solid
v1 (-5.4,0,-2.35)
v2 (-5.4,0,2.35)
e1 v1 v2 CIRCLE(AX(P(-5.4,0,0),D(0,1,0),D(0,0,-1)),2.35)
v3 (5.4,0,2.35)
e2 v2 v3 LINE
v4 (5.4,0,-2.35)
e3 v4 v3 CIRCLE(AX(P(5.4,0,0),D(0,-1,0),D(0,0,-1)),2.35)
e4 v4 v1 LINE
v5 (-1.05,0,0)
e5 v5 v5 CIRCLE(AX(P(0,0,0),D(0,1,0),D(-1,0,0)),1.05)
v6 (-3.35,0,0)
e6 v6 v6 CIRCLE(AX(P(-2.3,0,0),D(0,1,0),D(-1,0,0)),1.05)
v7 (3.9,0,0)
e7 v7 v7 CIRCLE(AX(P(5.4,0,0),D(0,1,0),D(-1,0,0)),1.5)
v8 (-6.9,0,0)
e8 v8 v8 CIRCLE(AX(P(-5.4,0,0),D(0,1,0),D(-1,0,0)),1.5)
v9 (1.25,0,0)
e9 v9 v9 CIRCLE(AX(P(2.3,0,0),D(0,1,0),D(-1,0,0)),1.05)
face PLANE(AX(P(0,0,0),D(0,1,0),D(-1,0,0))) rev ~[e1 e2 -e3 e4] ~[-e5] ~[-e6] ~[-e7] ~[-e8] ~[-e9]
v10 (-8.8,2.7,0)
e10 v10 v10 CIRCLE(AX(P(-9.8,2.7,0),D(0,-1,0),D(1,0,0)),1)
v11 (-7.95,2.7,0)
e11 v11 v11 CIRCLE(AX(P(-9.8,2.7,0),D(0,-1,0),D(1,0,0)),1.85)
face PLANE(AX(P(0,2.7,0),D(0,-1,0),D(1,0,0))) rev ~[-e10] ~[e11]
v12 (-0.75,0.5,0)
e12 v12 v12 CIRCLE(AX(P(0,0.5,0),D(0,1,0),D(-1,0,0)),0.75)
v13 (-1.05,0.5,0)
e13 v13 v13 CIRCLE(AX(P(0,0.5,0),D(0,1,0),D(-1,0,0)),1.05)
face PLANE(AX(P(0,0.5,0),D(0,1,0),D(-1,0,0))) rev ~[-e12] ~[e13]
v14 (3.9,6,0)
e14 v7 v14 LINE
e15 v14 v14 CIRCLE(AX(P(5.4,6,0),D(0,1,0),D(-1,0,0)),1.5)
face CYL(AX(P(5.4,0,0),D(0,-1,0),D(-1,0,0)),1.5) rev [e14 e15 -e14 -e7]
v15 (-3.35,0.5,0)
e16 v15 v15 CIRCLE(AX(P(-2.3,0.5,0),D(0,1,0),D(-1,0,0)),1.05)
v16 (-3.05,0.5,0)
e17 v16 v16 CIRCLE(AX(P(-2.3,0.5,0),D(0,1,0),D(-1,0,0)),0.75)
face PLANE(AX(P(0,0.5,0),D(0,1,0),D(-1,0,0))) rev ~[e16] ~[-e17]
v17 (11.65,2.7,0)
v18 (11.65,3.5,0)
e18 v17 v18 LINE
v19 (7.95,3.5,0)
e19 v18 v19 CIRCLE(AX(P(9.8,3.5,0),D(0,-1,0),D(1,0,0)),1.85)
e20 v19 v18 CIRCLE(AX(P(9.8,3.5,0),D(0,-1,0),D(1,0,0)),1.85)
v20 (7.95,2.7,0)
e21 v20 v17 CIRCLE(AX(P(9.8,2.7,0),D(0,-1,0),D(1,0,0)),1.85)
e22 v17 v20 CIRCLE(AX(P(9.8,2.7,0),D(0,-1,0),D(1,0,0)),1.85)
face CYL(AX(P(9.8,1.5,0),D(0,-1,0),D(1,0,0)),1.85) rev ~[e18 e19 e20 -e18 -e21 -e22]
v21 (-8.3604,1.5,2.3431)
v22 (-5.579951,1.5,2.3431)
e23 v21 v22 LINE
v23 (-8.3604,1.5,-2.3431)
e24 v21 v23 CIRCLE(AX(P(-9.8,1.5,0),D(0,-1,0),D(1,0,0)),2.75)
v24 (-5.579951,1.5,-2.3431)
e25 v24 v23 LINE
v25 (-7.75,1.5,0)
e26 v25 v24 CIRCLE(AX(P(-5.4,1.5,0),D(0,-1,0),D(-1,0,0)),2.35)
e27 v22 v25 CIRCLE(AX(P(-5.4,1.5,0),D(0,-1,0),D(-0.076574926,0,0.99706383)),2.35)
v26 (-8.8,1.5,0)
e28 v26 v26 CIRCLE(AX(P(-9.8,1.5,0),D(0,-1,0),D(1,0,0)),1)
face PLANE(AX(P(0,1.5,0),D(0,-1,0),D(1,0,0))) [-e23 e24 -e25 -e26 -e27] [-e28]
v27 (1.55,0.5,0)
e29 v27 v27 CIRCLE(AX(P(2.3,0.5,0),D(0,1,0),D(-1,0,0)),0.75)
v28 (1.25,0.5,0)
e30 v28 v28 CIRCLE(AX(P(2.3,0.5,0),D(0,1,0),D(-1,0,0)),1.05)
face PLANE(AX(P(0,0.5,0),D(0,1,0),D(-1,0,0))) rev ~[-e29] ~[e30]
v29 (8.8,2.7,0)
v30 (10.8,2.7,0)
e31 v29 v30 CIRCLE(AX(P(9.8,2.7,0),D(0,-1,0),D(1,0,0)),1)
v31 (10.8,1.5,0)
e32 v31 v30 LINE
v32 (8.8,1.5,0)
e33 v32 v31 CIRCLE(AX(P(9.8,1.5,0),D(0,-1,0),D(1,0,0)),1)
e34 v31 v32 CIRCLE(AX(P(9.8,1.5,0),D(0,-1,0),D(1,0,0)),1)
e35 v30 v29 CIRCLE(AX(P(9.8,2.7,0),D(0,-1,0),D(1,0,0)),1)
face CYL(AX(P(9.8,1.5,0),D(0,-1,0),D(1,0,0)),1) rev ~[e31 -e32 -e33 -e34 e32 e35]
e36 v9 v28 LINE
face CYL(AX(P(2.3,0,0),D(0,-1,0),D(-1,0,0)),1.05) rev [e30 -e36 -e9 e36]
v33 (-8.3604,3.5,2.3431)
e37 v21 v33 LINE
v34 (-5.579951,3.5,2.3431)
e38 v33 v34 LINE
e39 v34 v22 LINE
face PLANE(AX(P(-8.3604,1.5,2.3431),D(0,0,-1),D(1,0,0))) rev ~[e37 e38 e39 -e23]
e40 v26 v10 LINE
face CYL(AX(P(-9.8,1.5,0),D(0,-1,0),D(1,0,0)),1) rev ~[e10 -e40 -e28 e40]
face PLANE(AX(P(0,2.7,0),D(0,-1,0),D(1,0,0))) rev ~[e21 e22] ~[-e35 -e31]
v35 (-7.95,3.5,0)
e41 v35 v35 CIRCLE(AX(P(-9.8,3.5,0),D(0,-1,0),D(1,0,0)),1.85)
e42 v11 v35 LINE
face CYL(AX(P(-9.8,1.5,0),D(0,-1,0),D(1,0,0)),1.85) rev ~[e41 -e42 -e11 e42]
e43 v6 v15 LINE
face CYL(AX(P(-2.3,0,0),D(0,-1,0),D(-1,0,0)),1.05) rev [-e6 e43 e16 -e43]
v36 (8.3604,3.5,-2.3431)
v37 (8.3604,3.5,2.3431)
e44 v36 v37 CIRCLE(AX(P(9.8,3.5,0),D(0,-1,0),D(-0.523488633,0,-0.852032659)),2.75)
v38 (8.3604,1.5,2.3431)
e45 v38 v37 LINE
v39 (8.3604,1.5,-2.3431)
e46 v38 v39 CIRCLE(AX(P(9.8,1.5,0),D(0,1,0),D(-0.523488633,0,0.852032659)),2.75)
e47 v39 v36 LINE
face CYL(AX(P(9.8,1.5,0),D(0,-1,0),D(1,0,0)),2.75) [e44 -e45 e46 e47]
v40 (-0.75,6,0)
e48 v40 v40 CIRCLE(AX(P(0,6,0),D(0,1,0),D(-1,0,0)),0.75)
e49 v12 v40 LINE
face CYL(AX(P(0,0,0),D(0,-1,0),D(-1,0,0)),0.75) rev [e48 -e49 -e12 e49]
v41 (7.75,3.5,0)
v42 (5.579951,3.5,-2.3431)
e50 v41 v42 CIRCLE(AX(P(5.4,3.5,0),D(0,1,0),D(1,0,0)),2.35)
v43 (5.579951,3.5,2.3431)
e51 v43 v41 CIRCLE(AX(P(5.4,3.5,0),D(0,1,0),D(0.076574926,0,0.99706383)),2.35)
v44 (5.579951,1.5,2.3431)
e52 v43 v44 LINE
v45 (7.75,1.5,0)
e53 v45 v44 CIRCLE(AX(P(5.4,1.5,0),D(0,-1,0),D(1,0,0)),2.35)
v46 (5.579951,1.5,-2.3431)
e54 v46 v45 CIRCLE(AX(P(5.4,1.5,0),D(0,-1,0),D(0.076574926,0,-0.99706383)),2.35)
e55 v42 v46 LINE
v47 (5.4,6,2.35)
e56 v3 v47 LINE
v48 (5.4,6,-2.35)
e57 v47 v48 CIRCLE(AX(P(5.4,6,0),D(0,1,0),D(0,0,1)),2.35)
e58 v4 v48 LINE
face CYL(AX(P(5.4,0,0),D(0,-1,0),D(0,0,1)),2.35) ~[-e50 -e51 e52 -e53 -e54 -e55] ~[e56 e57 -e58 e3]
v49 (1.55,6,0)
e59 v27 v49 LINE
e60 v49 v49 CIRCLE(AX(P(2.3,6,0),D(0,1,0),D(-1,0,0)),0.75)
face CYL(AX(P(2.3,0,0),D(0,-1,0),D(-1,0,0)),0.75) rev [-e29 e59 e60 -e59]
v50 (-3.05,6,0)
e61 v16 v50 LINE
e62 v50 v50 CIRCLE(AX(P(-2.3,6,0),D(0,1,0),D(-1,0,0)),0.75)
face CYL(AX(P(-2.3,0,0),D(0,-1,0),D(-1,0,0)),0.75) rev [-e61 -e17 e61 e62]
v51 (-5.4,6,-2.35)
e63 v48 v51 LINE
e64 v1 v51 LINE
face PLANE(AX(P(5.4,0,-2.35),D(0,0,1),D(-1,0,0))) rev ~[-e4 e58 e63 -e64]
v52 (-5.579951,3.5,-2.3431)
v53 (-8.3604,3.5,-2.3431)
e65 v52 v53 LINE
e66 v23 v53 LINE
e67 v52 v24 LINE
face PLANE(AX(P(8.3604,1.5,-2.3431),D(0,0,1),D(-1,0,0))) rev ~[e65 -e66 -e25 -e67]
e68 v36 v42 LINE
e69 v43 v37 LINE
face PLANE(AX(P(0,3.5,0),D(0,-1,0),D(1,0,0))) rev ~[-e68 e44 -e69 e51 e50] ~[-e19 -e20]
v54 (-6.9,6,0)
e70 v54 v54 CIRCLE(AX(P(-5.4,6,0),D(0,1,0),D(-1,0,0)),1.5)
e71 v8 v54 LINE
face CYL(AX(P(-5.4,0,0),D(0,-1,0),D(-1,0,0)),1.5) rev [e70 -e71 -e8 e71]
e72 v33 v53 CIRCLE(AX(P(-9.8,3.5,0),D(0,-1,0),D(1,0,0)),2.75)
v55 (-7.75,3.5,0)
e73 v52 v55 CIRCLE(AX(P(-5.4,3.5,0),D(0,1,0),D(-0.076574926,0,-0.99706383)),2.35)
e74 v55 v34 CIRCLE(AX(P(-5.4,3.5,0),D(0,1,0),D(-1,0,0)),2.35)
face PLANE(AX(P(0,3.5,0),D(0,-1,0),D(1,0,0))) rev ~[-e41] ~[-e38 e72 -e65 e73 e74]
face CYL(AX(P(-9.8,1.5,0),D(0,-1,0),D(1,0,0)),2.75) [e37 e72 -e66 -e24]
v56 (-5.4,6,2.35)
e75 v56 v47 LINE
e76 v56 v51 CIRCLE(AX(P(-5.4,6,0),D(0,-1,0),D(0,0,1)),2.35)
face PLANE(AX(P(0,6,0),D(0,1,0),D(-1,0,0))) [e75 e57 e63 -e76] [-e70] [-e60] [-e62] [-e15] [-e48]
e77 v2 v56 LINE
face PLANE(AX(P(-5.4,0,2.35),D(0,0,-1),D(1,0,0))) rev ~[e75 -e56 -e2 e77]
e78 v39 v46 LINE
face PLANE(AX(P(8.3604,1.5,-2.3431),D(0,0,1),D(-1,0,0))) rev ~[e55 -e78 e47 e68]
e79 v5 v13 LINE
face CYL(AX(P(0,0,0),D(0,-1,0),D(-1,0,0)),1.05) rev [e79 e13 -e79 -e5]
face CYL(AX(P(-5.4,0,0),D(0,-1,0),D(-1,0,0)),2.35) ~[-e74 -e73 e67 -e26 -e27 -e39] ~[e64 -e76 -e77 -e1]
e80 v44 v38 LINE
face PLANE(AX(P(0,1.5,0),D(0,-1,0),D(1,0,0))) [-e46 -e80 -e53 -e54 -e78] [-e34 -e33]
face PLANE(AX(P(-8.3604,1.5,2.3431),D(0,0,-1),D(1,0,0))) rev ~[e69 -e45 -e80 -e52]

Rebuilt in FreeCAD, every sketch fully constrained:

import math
import FreeCAD as App
import Part
import Sketcher

V = App.Vector

doc = App.newDocument("Part")
params = doc.addObject("Spreadsheet::Sheet", "Params")
for row, (alias, value) in enumerate([
    ("sketch1_diameter", "3 mm"),
    ("sketch1_diameter2", "1.5 mm"),
    ("sketch1_radius", "2.35 mm"),
    ("sketch1_width", "10.8 mm"),
    ("pad1_length", "6 mm"),
    ("sketch2_radius", "2.75 mm"),
    ("pad2_length", "2 mm"),
    ("sketch3_diameter", "5.5 mm"),
    ("sketch3_diameter2", "3.7 mm"),
    ("pad3_length", "2 mm"),
    ("sketch4_diameter", "2 mm"),
    ("sketch4_diameter2", "3.7 mm"),
    ("pad4_length", "1.2 mm"),
    ("sketch5_diameter", "2 mm"),
    ("sketch6_diameter", "3 mm"),
    ("sketch7_diameter", "1.5 mm"),
    ("pocket3_length", "10 mm"),
    ("sketch8_diameter", "2.1 mm"),
    ("sketch8_diameter2", "1.5 mm"),
    ("pocket4_length", "0.5 mm"),
], start=1):
    params.set(f"A{row}", alias)
    params.set(f"B{row}", "=" + value)
    params.setAlias(f"B{row}", alias)

body = doc.addObject("PartDesign::Body", "Body")

sketch1 = doc.addObject("Sketcher::SketchObject", "Sketch")
body.addObject(sketch1)
sketch1.AttachmentSupport = (doc.XZ_Plane, [""])
sketch1.MapMode = "FlatFace"
sketch1.addGeometry([
    Part.LineSegment(V(-5.4, 2.4, 0), V(5.4, 2.4, 0)),
    Part.ArcOfCircle(Part.Circle(V(5.4, 0, 0), V(0, 0, 1), 2.4), math.radians(-90), math.radians(90)),
    Part.LineSegment(V(5.4, -2.4, 0), V(-5.4, -2.4, 0)),
    Part.ArcOfCircle(Part.Circle(V(-5.4, 0, 0), V(0, 0, 1), 2.4), math.radians(90), math.radians(270)),
    Part.Circle(V(5.4, 0, 0), V(0, 0, 1), 1.5),
    Part.Circle(V(-5.4, 0, 0), V(0, 0, 1), 1.5),
    Part.Circle(V(2.3, 0, 0), V(0, 0, 1), 0.8),
    Part.Circle(V(0, 0, 0), V(0, 0, 1), 0.8),
    Part.Circle(V(-2.3, 0, 0), V(0, 0, 1), 0.8),
], False)
sketch1.addConstraint([
    Sketcher.Constraint("Tangent", 0, 2, 1, 2),
    Sketcher.Constraint("Tangent", 1, 1, 2, 1),
    Sketcher.Constraint("Tangent", 2, 2, 3, 2),
    Sketcher.Constraint("Tangent", 3, 1, 0, 1),
    Sketcher.Constraint("Horizontal", 0),
    Sketcher.Constraint("Horizontal", 2),
    Sketcher.Constraint("Coincident", 7, 3, -1, 1),
    Sketcher.Constraint("Coincident", 4, 3, 1, 3),
    Sketcher.Constraint("Coincident", 5, 3, 3, 3),
    Sketcher.Constraint("Equal", 4, 5),
    Sketcher.Constraint("Equal", 6, 7),
    Sketcher.Constraint("Equal", 7, 8),
    Sketcher.Constraint("Symmetric", 1, 3, 3, 3, -1, 1),
    Sketcher.Constraint("Symmetric", 6, 3, 8, 3, -1, 1),
    Sketcher.Constraint("PointOnObject", 6, 3, -1),
    Sketcher.Constraint("Diameter", 4, 3.0),
    Sketcher.Constraint("Diameter", 6, 1.5),
    Sketcher.Constraint("Radius", 1, 2.35),
    Sketcher.Constraint("DistanceX", 8, 3, 6, 3, 4.6),
    Sketcher.Constraint("DistanceX", 0, 1, 0, 2, 10.8),
])
sketch1.setExpression("Constraints[15]", "Params.sketch1_diameter")
sketch1.setExpression("Constraints[16]", "Params.sketch1_diameter2")
sketch1.setExpression("Constraints[17]", "Params.sketch1_radius")
sketch1.setExpression("Constraints[19]", "Params.sketch1_width")
pad1 = doc.addObject("PartDesign::Pad", "Pad")
body.addObject(pad1)
pad1.Profile = sketch1
pad1.setExpression("Length", "Params.pad1_length")
pad1.Reversed = True

sketch2 = doc.addObject("Sketcher::SketchObject", "Sketch001")
body.addObject(sketch2)
sketch2.AttachmentSupport = (doc.XZ_Plane, [""])
sketch2.MapMode = "FlatFace"
sketch2.AttachmentOffset = App.Placement(V(0, 0, -1.5), App.Rotation())
sketch2.addGeometry([
    Part.ArcOfCircle(Part.Circle(V(-9.8, 0, 0), V(0, 0, 1), 2.8), math.radians(-58), math.radians(58)),
    Part.LineSegment(V(-8.4, -2.3, 0), V(8.4, -2.3, 0)),
    Part.ArcOfCircle(Part.Circle(V(9.8, 0, 0), V(0, 0, 1), 2.8), math.radians(122), math.radians(238)),
    Part.LineSegment(V(8.4, 2.3, 0), V(-8.4, 2.3, 0)),
], False)
sketch2.addConstraint([
    Sketcher.Constraint("Coincident", 0, 1, 1, 1),
    Sketcher.Constraint("Coincident", 1, 2, 2, 2),
    Sketcher.Constraint("Coincident", 2, 1, 3, 1),
    Sketcher.Constraint("Coincident", 3, 2, 0, 2),
    Sketcher.Constraint("Horizontal", 1),
    Sketcher.Constraint("Horizontal", 3),
    Sketcher.Constraint("Equal", 0, 2),
    Sketcher.Constraint("Symmetric", 0, 3, 2, 3, -1, 1),
    Sketcher.Constraint("Symmetric", 1, 2, 2, 1, -1),
    Sketcher.Constraint("Radius", 0, 2.75),
    Sketcher.Constraint("DistanceX", 0, 3, -1, 1, 9.8),
    Sketcher.Constraint("DistanceX", 1, 1, 1, 2, 16.7208),
])
sketch2.setExpression("Constraints[9]", "Params.sketch2_radius")
pad2 = doc.addObject("PartDesign::Pad", "Pad001")
body.addObject(pad2)
pad2.Profile = sketch2
pad2.setExpression("Length", "Params.pad2_length")
pad2.Reversed = True

sketch3 = doc.addObject("Sketcher::SketchObject", "Sketch002")
body.addObject(sketch3)
sketch3.AttachmentSupport = (doc.XZ_Plane, [""])
sketch3.MapMode = "FlatFace"
sketch3.AttachmentOffset = App.Placement(V(0, 0, -1.5), App.Rotation())
sketch3.addGeometry([
    Part.Circle(V(9.8, 0, 0), V(0, 0, 1), 2.8),
    Part.Circle(V(9.8, 0, 0), V(0, 0, 1), 1.9),
    Part.Circle(V(-9.8, 0, 0), V(0, 0, 1), 2.8),
    Part.Circle(V(-9.8, 0, 0), V(0, 0, 1), 1.9),
], False)
sketch3.addConstraint([
    Sketcher.Constraint("Coincident", 1, 3, 0, 3),
    Sketcher.Constraint("Coincident", 3, 3, 2, 3),
    Sketcher.Constraint("Equal", 0, 2),
    Sketcher.Constraint("Equal", 1, 3),
    Sketcher.Constraint("Symmetric", 0, 3, 2, 3, -1, 1),
    Sketcher.Constraint("PointOnObject", 0, 3, -1),
    Sketcher.Constraint("Diameter", 0, 5.5),
    Sketcher.Constraint("Diameter", 1, 3.7),
    Sketcher.Constraint("DistanceX", -1, 1, 0, 3, 9.8),
])
sketch3.setExpression("Constraints[6]", "Params.sketch3_diameter")
sketch3.setExpression("Constraints[7]", "Params.sketch3_diameter2")
pad3 = doc.addObject("PartDesign::Pad", "Pad002")
body.addObject(pad3)
pad3.Profile = sketch3
pad3.setExpression("Length", "Params.pad3_length")
pad3.Reversed = True

sketch4 = doc.addObject("Sketcher::SketchObject", "Sketch003")
body.addObject(sketch4)
sketch4.AttachmentSupport = (doc.XZ_Plane, [""])
sketch4.MapMode = "FlatFace"
sketch4.AttachmentOffset = App.Placement(V(0, 0, -1.5), App.Rotation())
sketch4.addGeometry([
    Part.Circle(V(9.8, 0, 0), V(0, 0, 1), 1.9),
    Part.Circle(V(9.8, 0, 0), V(0, 0, 1), 1),
    Part.Circle(V(-9.8, 0, 0), V(0, 0, 1), 1.9),
], False)
sketch4.addConstraint([
    Sketcher.Constraint("Coincident", 1, 3, 0, 3),
    Sketcher.Constraint("Equal", 0, 2),
    Sketcher.Constraint("Symmetric", 0, 3, 2, 3, -1, 1),
    Sketcher.Constraint("PointOnObject", 0, 3, -1),
    Sketcher.Constraint("Diameter", 1, 2.0),
    Sketcher.Constraint("Diameter", 0, 3.7),
    Sketcher.Constraint("DistanceX", -1, 1, 0, 3, 9.8),
])
sketch4.setExpression("Constraints[4]", "Params.sketch4_diameter")
sketch4.setExpression("Constraints[5]", "Params.sketch4_diameter2")
pad4 = doc.addObject("PartDesign::Pad", "Pad003")
body.addObject(pad4)
pad4.Profile = sketch4
pad4.setExpression("Length", "Params.pad4_length")
pad4.Reversed = True

sketch5 = doc.addObject("Sketcher::SketchObject", "Sketch004")
body.addObject(sketch5)
sketch5.AttachmentSupport = (doc.XZ_Plane, [""])
sketch5.MapMode = "FlatFace"
sketch5.AttachmentOffset = App.Placement(V(0, 0, -1.5), App.Rotation())
sketch5.addGeometry([
    Part.Circle(V(9.8, 0, 0), V(0, 0, 1), 1),
    Part.Circle(V(-9.8, 0, 0), V(0, 0, 1), 1),
], False)
sketch5.addConstraint([
    Sketcher.Constraint("Equal", 0, 1),
    Sketcher.Constraint("Symmetric", 0, 3, 1, 3, -1, 1),
    Sketcher.Constraint("PointOnObject", 0, 3, -1),
    Sketcher.Constraint("Diameter", 0, 2.0),
    Sketcher.Constraint("DistanceX", -1, 1, 0, 3, 9.8),
])
sketch5.setExpression("Constraints[3]", "Params.sketch5_diameter")
pocket1 = doc.addObject("PartDesign::Pocket", "Pocket")
body.addObject(pocket1)
pocket1.Profile = sketch5
pocket1.Type = "ThroughAll"

sketch6 = doc.addObject("Sketcher::SketchObject", "Sketch005")
body.addObject(sketch6)
sketch6.AttachmentSupport = (doc.XZ_Plane, [""])
sketch6.MapMode = "FlatFace"
sketch6.addGeometry([
    Part.Circle(V(-5.4, 0, 0), V(0, 0, 1), 1.5),
    Part.Circle(V(5.4, 0, 0), V(0, 0, 1), 1.5),
], False)
sketch6.addConstraint([
    Sketcher.Constraint("Equal", 0, 1),
    Sketcher.Constraint("Symmetric", 0, 3, 1, 3, -1, 1),
    Sketcher.Constraint("PointOnObject", 0, 3, -1),
    Sketcher.Constraint("Diameter", 0, 3.0),
    Sketcher.Constraint("DistanceX", 0, 3, -1, 1, 5.4),
])
sketch6.setExpression("Constraints[3]", "Params.sketch6_diameter")
pocket2 = doc.addObject("PartDesign::Pocket", "Pocket001")
body.addObject(pocket2)
pocket2.Profile = sketch6
pocket2.Type = "ThroughAll"

sketch7 = doc.addObject("Sketcher::SketchObject", "Sketch006")
body.addObject(sketch7)
sketch7.AttachmentSupport = (doc.XZ_Plane, [""])
sketch7.MapMode = "FlatFace"
sketch7.addGeometry([
    Part.Circle(V(-2.3, 0, 0), V(0, 0, 1), 0.8),
    Part.Circle(V(0, 0, 0), V(0, 0, 1), 0.8),
    Part.Circle(V(2.3, 0, 0), V(0, 0, 1), 0.8),
], False)
sketch7.addConstraint([
    Sketcher.Constraint("Coincident", 1, 3, -1, 1),
    Sketcher.Constraint("Equal", 0, 1),
    Sketcher.Constraint("Equal", 1, 2),
    Sketcher.Constraint("Symmetric", 0, 3, 2, 3, -1, 1),
    Sketcher.Constraint("PointOnObject", 0, 3, -1),
    Sketcher.Constraint("Diameter", 0, 1.5),
    Sketcher.Constraint("DistanceX", 0, 3, 2, 3, 4.6),
])
sketch7.setExpression("Constraints[5]", "Params.sketch7_diameter")
pocket3 = doc.addObject("PartDesign::Pocket", "Pocket002")
body.addObject(pocket3)
pocket3.Profile = sketch7
pocket3.setExpression("Length", "Params.pocket3_length")

sketch8 = doc.addObject("Sketcher::SketchObject", "Sketch007")
body.addObject(sketch8)
sketch8.AttachmentSupport = (doc.XZ_Plane, [""])
sketch8.MapMode = "FlatFace"
sketch8.addGeometry([
    Part.Circle(V(-2.3, 0, 0), V(0, 0, 1), 1.1),
    Part.Circle(V(-2.3, 0, 0), V(0, 0, 1), 0.8),
    Part.Circle(V(0, 0, 0), V(0, 0, 1), 1.1),
    Part.Circle(V(0, 0, 0), V(0, 0, 1), 0.8),
    Part.Circle(V(2.3, 0, 0), V(0, 0, 1), 1.1),
    Part.Circle(V(2.3, 0, 0), V(0, 0, 1), 0.8),
], False)
sketch8.addConstraint([
    Sketcher.Constraint("Coincident", 2, 3, -1, 1),
    Sketcher.Constraint("Coincident", 3, 3, -1, 1),
    Sketcher.Constraint("Coincident", 1, 3, 0, 3),
    Sketcher.Constraint("Coincident", 5, 3, 4, 3),
    Sketcher.Constraint("Equal", 0, 2),
    Sketcher.Constraint("Equal", 1, 3),
    Sketcher.Constraint("Equal", 2, 4),
    Sketcher.Constraint("Equal", 3, 5),
    Sketcher.Constraint("Symmetric", 0, 3, 4, 3, -1, 1),
    Sketcher.Constraint("PointOnObject", 0, 3, -1),
    Sketcher.Constraint("Diameter", 0, 2.1),
    Sketcher.Constraint("Diameter", 1, 1.5),
    Sketcher.Constraint("DistanceX", 0, 3, 4, 3, 4.6),
])
sketch8.setExpression("Constraints[10]", "Params.sketch8_diameter")
sketch8.setExpression("Constraints[11]", "Params.sketch8_diameter2")
pocket4 = doc.addObject("PartDesign::Pocket", "Pocket003")
body.addObject(pocket4)
pocket4.Profile = sketch8
pocket4.setExpression("Length", "Params.pocket4_length")

doc.recompute()
